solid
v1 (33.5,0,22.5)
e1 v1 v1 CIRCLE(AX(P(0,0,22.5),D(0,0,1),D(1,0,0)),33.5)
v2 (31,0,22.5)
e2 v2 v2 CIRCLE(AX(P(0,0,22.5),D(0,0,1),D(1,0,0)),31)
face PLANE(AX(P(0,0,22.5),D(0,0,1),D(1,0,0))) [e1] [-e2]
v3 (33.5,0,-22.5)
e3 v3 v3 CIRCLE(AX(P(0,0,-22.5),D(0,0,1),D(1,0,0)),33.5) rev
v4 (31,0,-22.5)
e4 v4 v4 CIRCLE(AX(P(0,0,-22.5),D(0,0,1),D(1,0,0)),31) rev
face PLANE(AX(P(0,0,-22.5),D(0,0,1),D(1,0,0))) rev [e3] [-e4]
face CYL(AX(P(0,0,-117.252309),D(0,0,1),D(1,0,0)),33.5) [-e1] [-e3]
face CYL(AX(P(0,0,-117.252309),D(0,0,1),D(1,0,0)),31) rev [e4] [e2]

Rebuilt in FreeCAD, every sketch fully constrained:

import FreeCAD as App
import Part
import Sketcher
from FreeCAD import Vector

doc = App.newDocument("Part")
body = doc.addObject("PartDesign::Body", "Body")

# Sketch on XY plane
sketch1 = body.newObject("Sketcher::SketchObject", "Sketch")
sketch1.AttachmentSupport = (doc.getObject("XY_Plane"), [""])
sketch1.MapMode = "FlatFace"
sketch1.AttachmentOffset = App.Placement(Vector(0, 0, -22.5), App.Rotation())
sketch1.addGeometry([
    Part.Circle(Vector(0, 0, 0), Vector(0, 0, 1), 34),
    Part.Circle(Vector(0, 0, 0), Vector(0, 0, 1), 31),
], False)
sketch1.addConstraint([
    Sketcher.Constraint("Coincident", 0, 3, -1, 1),
    Sketcher.Constraint("Coincident", 1, 3, -1, 1),
    Sketcher.Constraint("Diameter", 0, 67.0),
    Sketcher.Constraint("Diameter", 1, 62.0),
])
pad1 = body.newObject("PartDesign::Pad", "Pad")
pad1.Profile = sketch1
pad1.Length = 45

doc.recompute()
